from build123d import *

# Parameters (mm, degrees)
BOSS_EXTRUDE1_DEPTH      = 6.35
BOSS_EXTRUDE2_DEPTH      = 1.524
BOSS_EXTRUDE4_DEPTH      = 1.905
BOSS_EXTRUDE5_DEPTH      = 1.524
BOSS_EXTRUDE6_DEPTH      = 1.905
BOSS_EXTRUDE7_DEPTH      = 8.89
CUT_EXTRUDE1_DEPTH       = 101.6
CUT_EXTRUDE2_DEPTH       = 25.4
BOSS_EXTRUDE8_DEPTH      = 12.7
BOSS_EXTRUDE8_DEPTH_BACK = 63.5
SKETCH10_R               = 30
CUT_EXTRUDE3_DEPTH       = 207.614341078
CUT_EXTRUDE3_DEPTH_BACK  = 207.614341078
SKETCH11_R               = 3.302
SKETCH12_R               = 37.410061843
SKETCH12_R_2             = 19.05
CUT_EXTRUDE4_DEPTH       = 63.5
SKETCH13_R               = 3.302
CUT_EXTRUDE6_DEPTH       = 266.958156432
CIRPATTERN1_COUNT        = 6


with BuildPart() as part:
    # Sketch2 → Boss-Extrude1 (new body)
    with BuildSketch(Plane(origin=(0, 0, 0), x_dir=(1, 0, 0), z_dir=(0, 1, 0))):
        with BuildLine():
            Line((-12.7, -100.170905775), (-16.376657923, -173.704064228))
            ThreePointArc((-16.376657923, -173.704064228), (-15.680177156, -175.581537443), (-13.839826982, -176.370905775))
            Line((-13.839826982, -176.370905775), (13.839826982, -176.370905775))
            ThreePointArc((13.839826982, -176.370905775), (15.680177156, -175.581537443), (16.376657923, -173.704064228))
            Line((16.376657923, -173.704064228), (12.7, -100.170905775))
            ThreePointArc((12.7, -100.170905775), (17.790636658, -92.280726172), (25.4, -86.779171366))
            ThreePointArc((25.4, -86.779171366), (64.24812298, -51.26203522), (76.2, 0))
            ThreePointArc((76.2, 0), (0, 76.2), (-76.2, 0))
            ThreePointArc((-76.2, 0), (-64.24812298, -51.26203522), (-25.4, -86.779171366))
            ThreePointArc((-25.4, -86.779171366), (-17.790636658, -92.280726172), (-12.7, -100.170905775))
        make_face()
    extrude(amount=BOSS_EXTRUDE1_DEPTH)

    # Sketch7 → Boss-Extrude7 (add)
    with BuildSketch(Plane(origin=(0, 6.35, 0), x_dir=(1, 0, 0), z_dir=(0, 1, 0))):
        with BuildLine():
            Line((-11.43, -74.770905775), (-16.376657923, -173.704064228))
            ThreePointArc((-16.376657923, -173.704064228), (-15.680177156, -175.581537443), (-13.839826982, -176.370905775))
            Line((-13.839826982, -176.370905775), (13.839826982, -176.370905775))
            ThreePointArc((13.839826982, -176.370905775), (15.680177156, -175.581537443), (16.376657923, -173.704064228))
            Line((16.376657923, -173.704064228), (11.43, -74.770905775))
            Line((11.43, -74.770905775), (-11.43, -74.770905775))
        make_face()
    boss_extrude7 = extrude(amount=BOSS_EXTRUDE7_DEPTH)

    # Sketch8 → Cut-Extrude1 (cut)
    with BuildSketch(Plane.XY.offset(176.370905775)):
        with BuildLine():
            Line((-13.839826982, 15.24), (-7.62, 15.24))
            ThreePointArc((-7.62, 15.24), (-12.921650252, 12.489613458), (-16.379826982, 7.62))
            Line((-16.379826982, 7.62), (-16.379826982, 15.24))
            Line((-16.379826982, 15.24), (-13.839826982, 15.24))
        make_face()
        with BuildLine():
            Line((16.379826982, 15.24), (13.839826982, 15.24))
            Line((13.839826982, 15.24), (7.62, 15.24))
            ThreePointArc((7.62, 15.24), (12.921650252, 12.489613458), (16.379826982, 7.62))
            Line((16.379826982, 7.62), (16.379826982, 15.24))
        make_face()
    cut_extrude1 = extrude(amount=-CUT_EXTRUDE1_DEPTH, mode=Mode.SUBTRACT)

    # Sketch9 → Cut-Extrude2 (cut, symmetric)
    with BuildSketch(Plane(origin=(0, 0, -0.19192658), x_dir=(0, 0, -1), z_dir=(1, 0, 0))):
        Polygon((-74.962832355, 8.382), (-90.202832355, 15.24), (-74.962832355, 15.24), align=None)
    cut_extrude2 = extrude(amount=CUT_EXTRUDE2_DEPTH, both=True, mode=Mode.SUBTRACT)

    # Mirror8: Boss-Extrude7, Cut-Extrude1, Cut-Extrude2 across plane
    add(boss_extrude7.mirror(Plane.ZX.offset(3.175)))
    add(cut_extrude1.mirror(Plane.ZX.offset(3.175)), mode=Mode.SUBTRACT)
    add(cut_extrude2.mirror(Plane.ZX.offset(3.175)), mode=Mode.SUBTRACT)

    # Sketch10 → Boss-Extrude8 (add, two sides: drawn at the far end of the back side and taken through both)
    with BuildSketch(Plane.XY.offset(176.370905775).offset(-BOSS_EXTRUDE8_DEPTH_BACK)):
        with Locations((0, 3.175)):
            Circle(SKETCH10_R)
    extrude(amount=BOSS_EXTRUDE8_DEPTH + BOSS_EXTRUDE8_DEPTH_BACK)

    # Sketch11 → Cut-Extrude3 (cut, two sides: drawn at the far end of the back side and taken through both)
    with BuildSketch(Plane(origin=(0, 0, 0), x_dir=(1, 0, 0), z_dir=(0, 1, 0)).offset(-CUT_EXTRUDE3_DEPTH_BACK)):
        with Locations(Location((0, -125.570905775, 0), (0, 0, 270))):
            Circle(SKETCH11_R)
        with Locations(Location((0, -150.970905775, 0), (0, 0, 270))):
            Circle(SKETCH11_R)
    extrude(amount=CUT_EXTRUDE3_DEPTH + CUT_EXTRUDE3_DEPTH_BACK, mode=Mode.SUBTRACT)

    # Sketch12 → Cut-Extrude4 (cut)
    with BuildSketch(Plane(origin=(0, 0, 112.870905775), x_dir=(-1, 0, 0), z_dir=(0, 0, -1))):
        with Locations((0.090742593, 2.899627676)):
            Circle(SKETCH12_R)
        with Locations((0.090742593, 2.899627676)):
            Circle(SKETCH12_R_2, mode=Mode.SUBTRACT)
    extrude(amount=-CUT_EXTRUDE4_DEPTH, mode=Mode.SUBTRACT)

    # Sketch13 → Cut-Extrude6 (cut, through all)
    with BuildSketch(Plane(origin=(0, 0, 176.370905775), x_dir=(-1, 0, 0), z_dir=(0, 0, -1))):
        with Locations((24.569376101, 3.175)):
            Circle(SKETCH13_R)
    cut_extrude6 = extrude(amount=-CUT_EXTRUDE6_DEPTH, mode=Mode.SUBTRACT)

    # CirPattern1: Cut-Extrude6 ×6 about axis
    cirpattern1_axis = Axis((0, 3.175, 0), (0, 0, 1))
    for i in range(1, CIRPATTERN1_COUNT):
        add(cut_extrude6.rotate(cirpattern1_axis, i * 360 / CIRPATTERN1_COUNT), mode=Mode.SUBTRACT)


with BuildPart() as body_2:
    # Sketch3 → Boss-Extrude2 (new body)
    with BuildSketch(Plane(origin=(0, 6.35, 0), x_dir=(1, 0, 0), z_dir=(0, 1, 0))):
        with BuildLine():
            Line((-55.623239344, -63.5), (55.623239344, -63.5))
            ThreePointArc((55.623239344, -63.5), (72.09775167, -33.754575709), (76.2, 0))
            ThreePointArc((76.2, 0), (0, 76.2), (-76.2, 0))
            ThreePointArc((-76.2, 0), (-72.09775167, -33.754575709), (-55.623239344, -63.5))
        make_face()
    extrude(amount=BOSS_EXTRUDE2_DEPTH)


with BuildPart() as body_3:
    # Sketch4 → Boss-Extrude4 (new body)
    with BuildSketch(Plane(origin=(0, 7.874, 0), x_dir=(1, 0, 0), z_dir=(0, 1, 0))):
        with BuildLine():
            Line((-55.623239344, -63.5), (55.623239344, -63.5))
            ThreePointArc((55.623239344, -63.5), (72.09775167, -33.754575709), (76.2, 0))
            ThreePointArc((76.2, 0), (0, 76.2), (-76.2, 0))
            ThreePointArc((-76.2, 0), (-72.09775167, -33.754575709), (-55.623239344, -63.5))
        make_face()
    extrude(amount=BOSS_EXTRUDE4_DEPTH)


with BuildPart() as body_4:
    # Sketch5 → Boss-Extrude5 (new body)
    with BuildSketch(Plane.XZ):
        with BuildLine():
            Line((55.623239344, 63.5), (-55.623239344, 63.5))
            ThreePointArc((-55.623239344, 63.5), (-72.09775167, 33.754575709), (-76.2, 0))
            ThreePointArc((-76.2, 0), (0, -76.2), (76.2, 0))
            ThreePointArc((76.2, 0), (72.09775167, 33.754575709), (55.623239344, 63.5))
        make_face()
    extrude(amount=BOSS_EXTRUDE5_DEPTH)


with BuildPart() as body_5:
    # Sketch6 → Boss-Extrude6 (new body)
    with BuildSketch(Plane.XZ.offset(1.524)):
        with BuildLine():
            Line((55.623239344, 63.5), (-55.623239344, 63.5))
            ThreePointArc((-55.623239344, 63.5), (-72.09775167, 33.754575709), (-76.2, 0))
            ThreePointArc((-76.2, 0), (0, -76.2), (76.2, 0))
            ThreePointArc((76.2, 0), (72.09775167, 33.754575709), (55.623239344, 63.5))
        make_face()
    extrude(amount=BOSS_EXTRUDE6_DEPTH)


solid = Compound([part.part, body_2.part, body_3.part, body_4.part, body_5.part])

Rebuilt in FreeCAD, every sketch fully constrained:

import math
import FreeCAD as App
import Part
import Sketcher

V = App.Vector
Q = App.Units.Quantity


def add_polygon(sketch, points):
    """Adds a closed chain of lines whose ends are joined by coincident constraints."""
    first, n = sketch.GeometryCount, len(points)
    for a, b in zip(points, points[1:] + points[:1]):
        sketch.addGeometry(Part.LineSegment(App.Vector(*a, 0), App.Vector(*b, 0)), False)
    for i in range(n):
        sketch.addConstraint(Sketcher.Constraint("Coincident", first + i, 2, first + (i + 1) % n, 1))

doc = App.newDocument("Part")
body = doc.addObject("PartDesign::Body", "Body")

# Sketch on XZ plane
sketch1 = doc.addObject("Sketcher::SketchObject", "Sketch")
body.addObject(sketch1)
sketch1.AttachmentSupport = (doc.XZ_Plane, [""])
sketch1.MapMode = "FlatFace"
sketch1.addGeometry([
    Part.LineSegment(V(-12.7, 100.170906, 0), V(-16.376658, 173.704064, 0)),  # 0
    Part.ArcOfCircle(Part.Circle(V(-13.839827, 173.830906, 0), V(0, 0, 1), 2.54), math.radians(90), math.radians(182.862405)),  # 1
    Part.LineSegment(V(-13.839827, 176.370906, 0), V(13.839827, 176.370906, 0)),  # 2
    Part.ArcOfCircle(Part.Circle(V(13.839827, 173.830906, 0), V(0, 0, 1), 2.54), math.radians(-2.862405), math.radians(90)),  # 3
    Part.LineSegment(V(16.376658, 173.704064, 0), V(12.7, 100.170906, 0)),  # 4
    Part.ArcOfCircle(Part.Circle(V(36.220836, 109.758935, 0), V(0, 0, 1), 25.4), math.radians(-157.822235), math.radians(-115.215062)),  # 5
    Part.ArcOfCircle(Part.Circle(V(-12.472924, 6.35, 0), V(0, 0, 1), 88.9), math.radians(-4.096044), math.radians(64.784938)),  # 6
    Part.ArcOfCircle(Part.Circle(V(0, 0, 0), V(0, 0, 1), 76.2), math.radians(180), math.radians(360)),  # 7
    Part.ArcOfCircle(Part.Circle(V(12.472924, 6.35, 0), V(0, 0, 1), 88.9), math.radians(115.215062), math.radians(184.096044)),  # 8
    Part.ArcOfCircle(Part.Circle(V(-36.220836, 109.758935, 0), V(0, 0, 1), 25.4), math.radians(-64.784938), math.radians(-22.177765)),  # 9
], False)
sketch1.addConstraint([
    Sketcher.Constraint("Tangent", 0, 2, 1, 2),
    Sketcher.Constraint("Tangent", 1, 1, 2, 1),
    Sketcher.Constraint("Tangent", 2, 2, 3, 2),
    Sketcher.Constraint("Tangent", 3, 1, 4, 1),
    Sketcher.Constraint("Coincident", 4, 2, 5, 1),
    Sketcher.Constraint("Tangent", 5, 2, 6, 2),
    Sketcher.Constraint("Coincident", 6, 1, 7, 2),
    Sketcher.Constraint("Coincident", 7, 1, 8, 2),
    Sketcher.Constraint("Tangent", 8, 1, 9, 1),
    Sketcher.Constraint("Coincident", 9, 2, 0, 1),
    Sketcher.Constraint("Horizontal", 2),
    Sketcher.Constraint("Coincident", 7, 3, -1, 1),
    Sketcher.Constraint("Equal", 1, 3),
    Sketcher.Constraint("Equal", 6, 8),
    Sketcher.Constraint("Equal", 5, 9),
    Sketcher.Constraint("Symmetric", 6, 3, 8, 3, -2),
    Sketcher.Constraint("Symmetric", 0, 2, 3, 1, -2),
    Sketcher.Constraint("PointOnObject", 6, 1, -1),
    Sketcher.Constraint("Horizontal", 5, 3, 9, 3),
    Sketcher.Constraint("Radius", 5, Q("1 in")),
    Sketcher.Constraint("Radius", 7, Q("3 in")),
    Sketcher.Constraint("Radius", 1, Q("0.1 in")),
    Sketcher.Constraint("Radius", 6, Q("3.5 in")),
    Sketcher.Constraint("DistanceX", -1, 1, 5, 2, Q("1 in")),
    Sketcher.Constraint("DistanceY", 4, 2, 2, 2, Q("3 in")),
    Sketcher.Constraint("DistanceX", 9, 2, 4, 2, Q("1 in")),
    Sketcher.Constraint("DistanceY", -1, 1, 6, 3, Q("0.25 in")),
    Sketcher.Constraint("DistanceX", 2, 1, 2, 2, Q("27.679654 mm")),
])
pad1 = doc.addObject("PartDesign::Pad", "Pad")
body.addObject(pad1)
pad1.Profile = sketch1
pad1.Length = Q("0.25 in")
pad1.Reversed = True

# Sketch on XZ plane
sketch2 = doc.addObject("Sketcher::SketchObject", "Sketch001")
body.addObject(sketch2)
sketch2.AttachmentSupport = (doc.XZ_Plane, [""])
sketch2.MapMode = "FlatFace"
sketch2.AttachmentOffset = App.Placement(V(0, 0, -0.25 * 25.4), App.Rotation())
sketch2.addGeometry([
    Part.LineSegment(V(-11.43, 74.770906, 0), V(-16.376658, 173.704064, 0)),  # 0
    Part.ArcOfCircle(Part.Circle(V(-13.839827, 173.830906, 0), V(0, 0, 1), 2.54), math.radians(90), math.radians(182.862405)),  # 1
    Part.LineSegment(V(-13.839827, 176.370906, 0), V(13.839827, 176.370906, 0)),  # 2
    Part.ArcOfCircle(Part.Circle(V(13.839827, 173.830906, 0), V(0, 0, 1), 2.54), math.radians(-2.862405), math.radians(90)),  # 3
    Part.LineSegment(V(16.376658, 173.704064, 0), V(11.43, 74.770906, 0)),  # 4
    Part.LineSegment(V(11.43, 74.770906, 0), V(-11.43, 74.770906, 0)),  # 5
], False)
sketch2.addConstraint([
    Sketcher.Constraint("Tangent", 0, 2, 1, 2),
    Sketcher.Constraint("Tangent", 1, 1, 2, 1),
    Sketcher.Constraint("Tangent", 2, 2, 3, 2),
    Sketcher.Constraint("Tangent", 3, 1, 4, 1),
    Sketcher.Constraint("Coincident", 4, 2, 5, 1),
    Sketcher.Constraint("Coincident", 5, 2, 0, 1),
    Sketcher.Constraint("Horizontal", 2),
    Sketcher.Constraint("Horizontal", 5),
    Sketcher.Constraint("Equal", 1, 3),
    Sketcher.Constraint("Symmetric", 0, 2, 3, 1, -2),
    Sketcher.Constraint("Radius", 1, Q("0.1 in")),
    Sketcher.Constraint("DistanceX", 5, 2, 5, 1, Q("0.9 in")),
    Sketcher.Constraint("DistanceY", 4, 2, 2, 2, Q("4 in")),
    Sketcher.Constraint("DistanceX", 2, 1, 2, 2, Q("27.679654 mm")),
    Sketcher.Constraint("DistanceY", -1, 1, 1, 3, Q("173.830906 mm")),
])
pad2 = doc.addObject("PartDesign::Pad", "Pad001")
body.addObject(pad2)
pad2.Profile = sketch2
pad2.Length = Q("0.35 in")
pad2.Reversed = True

# Sketch on XY plane
sketch3 = doc.addObject("Sketcher::SketchObject", "Sketch002")
body.addObject(sketch3)
sketch3.AttachmentSupport = (doc.XY_Plane, [""])
sketch3.MapMode = "FlatFace"
sketch3.AttachmentOffset = App.Placement(V(0, 0, 176.370906), App.Rotation())
sketch3.addGeometry([
    Part.ArcOfCircle(Part.Circle(V(-4.586462, 2.907618, 0), V(0, 0, 1), 12.7), math.radians(103.81934), math.radians(158.219383)),  # 0
    Part.LineSegment(V(-7.62, 15.24, 0), V(-16.379827, 15.24, 0)),  # 1
    Part.LineSegment(V(-16.379827, 15.24, 0), V(-16.379827, 7.62, 0)),  # 2
    Part.LineSegment(V(16.379827, 15.24, 0), V(7.62, 15.24, 0)),  # 3
    Part.ArcOfCircle(Part.Circle(V(4.586462, 2.907618, 0), V(0, 0, 1), 12.7), math.radians(21.780617), math.radians(76.18066)),  # 4
    Part.LineSegment(V(16.379827, 7.62, 0), V(16.379827, 15.24, 0)),  # 5
], False)
sketch3.addConstraint([
    Sketcher.Constraint("Coincident", 0, 1, 1, 1),
    Sketcher.Constraint("Coincident", 1, 2, 2, 1),
    Sketcher.Constraint("Coincident", 2, 2, 0, 2),
    Sketcher.Constraint("Coincident", 3, 2, 4, 2),
    Sketcher.Constraint("Coincident", 4, 1, 5, 1),
    Sketcher.Constraint("Coincident", 5, 2, 3, 1),
    Sketcher.Constraint("Horizontal", 1),
    Sketcher.Constraint("Vertical", 2),
    Sketcher.Constraint("Horizontal", 3),
    Sketcher.Constraint("Vertical", 5),
    Sketcher.Constraint("Equal", 0, 4),
    Sketcher.Constraint("Symmetric", 0, 3, 4, 3, -2),
    Sketcher.Constraint("Symmetric", 1, 2, 5, 2, -2),
    Sketcher.Constraint("Radius", 0, Q("0.5 in")),
    Sketcher.Constraint("DistanceY", 2, 2, 2, 1, Q("0.3 in")),
    Sketcher.Constraint("DistanceX", 0, 1, -1, 1, Q("0.3 in")),
    Sketcher.Constraint("DistanceY", -1, 1, 0, 1, Q("0.6 in")),
    Sketcher.Constraint("DistanceX", 1, 2, 1, 1, Q("8.759827 mm")),
])
pocket1 = doc.addObject("PartDesign::Pocket", "Pocket")
body.addObject(pocket1)
pocket1.Profile = sketch3
pocket1.Length = Q("4 in")

# Sketch on YZ plane
sketch4 = doc.addObject("Sketcher::SketchObject", "Sketch003")
body.addObject(sketch4)
sketch4.AttachmentSupport = (doc.YZ_Plane, [""])
sketch4.MapMode = "FlatFace"
add_polygon(sketch4, [(15.24, 90.010906), (8.382, 74.770906), (15.24, 74.770906)])  # lines 0-2
sketch4.addConstraint([
    Sketcher.Constraint("Horizontal", 1),
    Sketcher.Constraint("Vertical", 2),
    Sketcher.Constraint("DistanceY", 2, 1, 2, 2, Q("0.6 in")),
    Sketcher.Constraint("DistanceX", 1, 1, 1, 2, Q("0.27 in")),
    Sketcher.Constraint("DistanceX", -1, 1, 1, 2, Q("0.6 in")),
    Sketcher.Constraint("DistanceY", -1, 1, 0, 2, Q("74.770906 mm")),
])
pocket2 = doc.addObject("PartDesign::Pocket", "Pocket001")
body.addObject(pocket2)
pocket2.Profile = sketch4
pocket2.Length = Q("2 in")
pocket2.Midplane = True
doc.recompute()

datumplane = doc.addObject("PartDesign::Plane", "DatumPlane")
body.addObject(datumplane)
datumplane.AttachmentSupport = (doc.XZ_Plane, [""])
datumplane.MapMode = "FlatFace"
datumplane.AttachmentOffset = App.Placement(V(0, 0, -0.125 * 25.4), App.Rotation())
mirrored = doc.addObject("PartDesign::Mirrored", "Mirrored")
body.addObject(mirrored)
mirrored.Originals = [pad2, pocket1, pocket2]
mirrored.MirrorPlane = (datumplane, [""])
body.Tip = mirrored

# Sketch on XY plane
sketch5 = doc.addObject("Sketcher::SketchObject", "Sketch004")
body.addObject(sketch5)
sketch5.AttachmentSupport = (doc.XY_Plane, [""])
sketch5.MapMode = "FlatFace"
sketch5.AttachmentOffset = App.Placement(V(0, 0, 176.370906), App.Rotation())
sketch5.addGeometry(Part.Circle(V(0, 3.175, 0), V(0, 0, 1), 30), False)
sketch5.addConstraint([
    Sketcher.Constraint("PointOnObject", 0, 3, -2),
    Sketcher.Constraint("Diameter", 0, Q("60 mm")),
    Sketcher.Constraint("DistanceY", -1, 1, 0, 3, Q("0.125 in")),
])
pad3 = doc.addObject("PartDesign::Pad", "Pad002")
body.addObject(pad3)
pad3.Profile = sketch5
pad3.Type = "TwoLengths"
pad3.Length = Q("0.5 in")
pad3.Length2 = Q("2.5 in")

# Sketch on XZ plane
sketch6 = doc.addObject("Sketcher::SketchObject", "Sketch005")
body.addObject(sketch6)
sketch6.AttachmentSupport = (doc.XZ_Plane, [""])
sketch6.MapMode = "FlatFace"
sketch6.addGeometry([
    Part.Circle(V(0, 125.570906, 0), V(0, 0, 1), 3.302),
    Part.Circle(V(0, 150.970906, 0), V(0, 0, 1), 3.302),
], False)
sketch6.addConstraint([
    Sketcher.Constraint("Equal", 0, 1),
    Sketcher.Constraint("PointOnObject", 0, 3, -2),
    Sketcher.Constraint("PointOnObject", 1, 3, -2),
    Sketcher.Constraint("Diameter", 0, Q("0.26 in")),
    Sketcher.Constraint("DistanceY", 0, 3, 1, 3, Q("1 in")),
    Sketcher.Constraint("DistanceY", -1, 1, 0, 3, Q("125.570906 mm")),
])
pocket3 = doc.addObject("PartDesign::Pocket", "Pocket002")
body.addObject(pocket3)
pocket3.Profile = sketch6
pocket3.Type = "ThroughAll"
pocket3.Midplane = True

# Sketch on XY plane
sketch7 = doc.addObject("Sketcher::SketchObject", "Sketch006")
body.addObject(sketch7)
sketch7.AttachmentSupport = (doc.XY_Plane, [""])
sketch7.MapMode = "FlatFace"
sketch7.AttachmentOffset = App.Placement(V(0, 0, 112.870906), App.Rotation())
sketch7.addGeometry([
    Part.Circle(V(-0.090743, 2.899628, 0), V(0, 0, 1), 37.410062),
    Part.Circle(V(-0.090743, 2.899628, 0), V(0, 0, 1), 19.05),
], False)
sketch7.addConstraint([
    Sketcher.Constraint("Coincident", 1, 3, 0, 3),
    Sketcher.Constraint("Diameter", 1, Q("1.5 in")),
    Sketcher.Constraint("Diameter", 0, Q("74.820124 mm")),
    Sketcher.Constraint("DistanceX", 0, 3, -1, 1, Q("0.090743 mm")),
    Sketcher.Constraint("DistanceY", -1, 1, 0, 3, Q("2.899628 mm")),
])
pocket4 = doc.addObject("PartDesign::Pocket", "Pocket003")
body.addObject(pocket4)
pocket4.Profile = sketch7
pocket4.Length = Q("2.5 in")
pocket4.Reversed = True

# Sketch on XY plane
sketch8 = doc.addObject("Sketcher::SketchObject", "Sketch007")
body.addObject(sketch8)
sketch8.AttachmentSupport = (doc.XY_Plane, [""])
sketch8.MapMode = "FlatFace"
sketch8.AttachmentOffset = App.Placement(V(0, 0, 176.370906), App.Rotation())
sketch8.addGeometry(Part.Circle(V(-24.569376, 3.175, 0), V(0, 0, 1), 3.302), False)
sketch8.addConstraint([
    Sketcher.Constraint("Diameter", 0, Q("0.26 in")),
    Sketcher.Constraint("DistanceY", -1, 1, 0, 3, Q("0.125 in")),
    Sketcher.Constraint("DistanceX", 0, 3, -1, 1, Q("24.569376 mm")),
])
pocket5 = doc.addObject("PartDesign::Pocket", "Pocket004")
body.addObject(pocket5)
pocket5.Profile = sketch8
pocket5.Type = "ThroughAll"
pocket5.Reversed = True
doc.recompute()

datumline = doc.addObject("PartDesign::Line", "DatumLine")
body.addObject(datumline)
datumline.Placement = App.Placement(V(0, 3.175, 0), App.Rotation(V(0, 0, 1), V(0, 0, 1)))
polarpattern = doc.addObject("PartDesign::PolarPattern", "PolarPattern")
body.addObject(polarpattern)
polarpattern.Originals = [pocket5]
polarpattern.Axis = (datumline, [""])
polarpattern.Angle = 360
polarpattern.Occurrences = 6
body.Tip = polarpattern
body2 = doc.addObject("PartDesign::Body", "Body001")

# Sketch on XZ plane
sketch9 = doc.addObject("Sketcher::SketchObject", "Sketch008")
body2.addObject(sketch9)
sketch9.AttachmentSupport = (doc.getObject("XZ_Plane001"), [""])
sketch9.MapMode = "FlatFace"
sketch9.AttachmentOffset = App.Placement(V(0, 0, -0.25 * 25.4), App.Rotation())
sketch9.addGeometry([
    Part.LineSegment(V(-55.623239, 63.5, 0), V(55.623239, 63.5, 0)),
    Part.ArcOfCircle(Part.Circle(V(-12.472924, 6.35, 0), V(0, 0, 1), 88.9), math.radians(-4.096044), math.radians(40.005201)),
    Part.ArcOfCircle(Part.Circle(V(0, 0, 0), V(0, 0, 1), 76.2), math.radians(180), math.radians(360)),
    Part.ArcOfCircle(Part.Circle(V(12.472924, 6.35, 0), V(0, 0, 1), 88.9), math.radians(139.994799), math.radians(184.096044)),
], False)
sketch9.addConstraint([
    Sketcher.Constraint("Coincident", 0, 2, 1, 2),
    Sketcher.Constraint("Coincident", 1, 1, 2, 2),
    Sketcher.Constraint("Coincident", 2, 1, 3, 2),
    Sketcher.Constraint("Coincident", 3, 1, 0, 1),
    Sketcher.Constraint("Horizontal", 0),
    Sketcher.Constraint("Coincident", 2, 3, -1, 1),
    Sketcher.Constraint("Equal", 1, 3),
    Sketcher.Constraint("Symmetric", 1, 3, 3, 3, -2),
    Sketcher.Constraint("PointOnObject", 1, 1, -1),
    Sketcher.Constraint("Radius", 2, Q("3 in")),
    Sketcher.Constraint("Radius", 1, Q("3.5 in")),
    Sketcher.Constraint("DistanceY", -1, 1, 0, 2, Q("2.5 in")),
    Sketcher.Constraint("DistanceY", -1, 1, 1, 3, Q("0.25 in")),
])
pad4 = doc.addObject("PartDesign::Pad", "Pad003")
body2.addObject(pad4)
pad4.Profile = sketch9
pad4.Length = Q("0.06 in")
pad4.Reversed = True
body3 = doc.addObject("PartDesign::Body", "Body002")

# Sketch on XZ plane
sketch10 = doc.addObject("Sketcher::SketchObject", "Sketch009")
body3.addObject(sketch10)
sketch10.AttachmentSupport = (doc.getObject("XZ_Plane002"), [""])
sketch10.MapMode = "FlatFace"
sketch10.AttachmentOffset = App.Placement(V(0, 0, -0.31 * 25.4), App.Rotation())
sketch10.addGeometry([
    Part.LineSegment(V(-55.623239, 63.5, 0), V(55.623239, 63.5, 0)),
    Part.ArcOfCircle(Part.Circle(V(-12.472924, 6.35, 0), V(0, 0, 1), 88.9), math.radians(-4.096044), math.radians(40.005201)),
    Part.ArcOfCircle(Part.Circle(V(0, 0, 0), V(0, 0, 1), 76.2), math.radians(180), math.radians(360)),
    Part.ArcOfCircle(Part.Circle(V(12.472924, 6.35, 0), V(0, 0, 1), 88.9), math.radians(139.994799), math.radians(184.096044)),
], False)
sketch10.addConstraint([
    Sketcher.Constraint("Coincident", 0, 2, 1, 2),
    Sketcher.Constraint("Coincident", 1, 1, 2, 2),
    Sketcher.Constraint("Coincident", 2, 1, 3, 2),
    Sketcher.Constraint("Coincident", 3, 1, 0, 1),
    Sketcher.Constraint("Horizontal", 0),
    Sketcher.Constraint("Coincident", 2, 3, -1, 1),
    Sketcher.Constraint("Equal", 1, 3),
    Sketcher.Constraint("Symmetric", 1, 3, 3, 3, -2),
    Sketcher.Constraint("PointOnObject", 1, 1, -1),
    Sketcher.Constraint("Radius", 2, Q("3 in")),
    Sketcher.Constraint("Radius", 1, Q("3.5 in")),
    Sketcher.Constraint("DistanceY", -1, 1, 0, 2, Q("2.5 in")),
    Sketcher.Constraint("DistanceY", -1, 1, 1, 3, Q("0.25 in")),
])
pad5 = doc.addObject("PartDesign::Pad", "Pad004")
body3.addObject(pad5)
pad5.Profile = sketch10
pad5.Length = Q("0.075 in")
pad5.Reversed = True
body4 = doc.addObject("PartDesign::Body", "Body003")

# Sketch on XZ plane
sketch11 = doc.addObject("Sketcher::SketchObject", "Sketch010")
body4.addObject(sketch11)
sketch11.AttachmentSupport = (doc.getObject("XZ_Plane003"), [""])
sketch11.MapMode = "FlatFace"
sketch11.addGeometry([
    Part.LineSegment(V(55.623239, 63.5, 0), V(-55.623239, 63.5, 0)),
    Part.ArcOfCircle(Part.Circle(V(12.472924, 6.35, 0), V(0, 0, 1), 88.9), math.radians(139.994799), math.radians(184.096044)),
    Part.ArcOfCircle(Part.Circle(V(0, 0, 0), V(0, 0, 1), 76.2), math.radians(180), math.radians(360)),
    Part.ArcOfCircle(Part.Circle(V(-12.472924, 6.35, 0), V(0, 0, 1), 88.9), math.radians(-4.096044), math.radians(40.005201)),
], False)
sketch11.addConstraint([
    Sketcher.Constraint("Coincident", 0, 2, 1, 1),
    Sketcher.Constraint("Coincident", 1, 2, 2, 1),
    Sketcher.Constraint("Coincident", 2, 2, 3, 1),
    Sketcher.Constraint("Coincident", 3, 2, 0, 1),
    Sketcher.Constraint("Horizontal", 0),
    Sketcher.Constraint("Coincident", 2, 3, -1, 1),
    Sketcher.Constraint("Equal", 1, 3),
    Sketcher.Constraint("Symmetric", 1, 3, 3, 3, -2),
    Sketcher.Constraint("PointOnObject", 1, 2, -1),
    Sketcher.Constraint("Radius", 2, Q("3 in")),
    Sketcher.Constraint("Radius", 1, Q("3.5 in")),
    Sketcher.Constraint("DistanceY", -1, 1, 0, 2, Q("2.5 in")),
    Sketcher.Constraint("DistanceY", -1, 1, 1, 3, Q("0.25 in")),
])
pad6 = doc.addObject("PartDesign::Pad", "Pad005")
body4.addObject(pad6)
pad6.Profile = sketch11
pad6.Length = Q("0.06 in")
body5 = doc.addObject("PartDesign::Body", "Body004")

# Sketch on XZ plane
sketch12 = doc.addObject("Sketcher::SketchObject", "Sketch011")
body5.addObject(sketch12)
sketch12.AttachmentSupport = (doc.getObject("XZ_Plane004"), [""])
sketch12.MapMode = "FlatFace"
sketch12.AttachmentOffset = App.Placement(V(0, 0, 0.06 * 25.4), App.Rotation())
sketch12.addGeometry([
    Part.LineSegment(V(55.623239, 63.5, 0), V(-55.623239, 63.5, 0)),
    Part.ArcOfCircle(Part.Circle(V(12.472924, 6.35, 0), V(0, 0, 1), 88.9), math.radians(139.994799), math.radians(184.096044)),
    Part.ArcOfCircle(Part.Circle(V(0, 0, 0), V(0, 0, 1), 76.2), math.radians(180), math.radians(360)),
    Part.ArcOfCircle(Part.Circle(V(-12.472924, 6.35, 0), V(0, 0, 1), 88.9), math.radians(-4.096044), math.radians(40.005201)),
], False)
sketch12.addConstraint([
    Sketcher.Constraint("Coincident", 0, 2, 1, 1),
    Sketcher.Constraint("Coincident", 1, 2, 2, 1),
    Sketcher.Constraint("Coincident", 2, 2, 3, 1),
    Sketcher.Constraint("Coincident", 3, 2, 0, 1),
    Sketcher.Constraint("Horizontal", 0),
    Sketcher.Constraint("Coincident", 2, 3, -1, 1),
    Sketcher.Constraint("Equal", 1, 3),
    Sketcher.Constraint("Symmetric", 1, 3, 3, 3, -2),
    Sketcher.Constraint("PointOnObject", 1, 2, -1),
    Sketcher.Constraint("Radius", 2, Q("3 in")),
    Sketcher.Constraint("Radius", 1, Q("3.5 in")),
    Sketcher.Constraint("DistanceY", -1, 1, 0, 2, Q("2.5 in")),
    Sketcher.Constraint("DistanceY", -1, 1, 1, 3, Q("0.25 in")),
])
pad7 = doc.addObject("PartDesign::Pad", "Pad006")
body5.addObject(pad7)
pad7.Profile = sketch12
pad7.Length = Q("0.075 in")

doc.recompute()
